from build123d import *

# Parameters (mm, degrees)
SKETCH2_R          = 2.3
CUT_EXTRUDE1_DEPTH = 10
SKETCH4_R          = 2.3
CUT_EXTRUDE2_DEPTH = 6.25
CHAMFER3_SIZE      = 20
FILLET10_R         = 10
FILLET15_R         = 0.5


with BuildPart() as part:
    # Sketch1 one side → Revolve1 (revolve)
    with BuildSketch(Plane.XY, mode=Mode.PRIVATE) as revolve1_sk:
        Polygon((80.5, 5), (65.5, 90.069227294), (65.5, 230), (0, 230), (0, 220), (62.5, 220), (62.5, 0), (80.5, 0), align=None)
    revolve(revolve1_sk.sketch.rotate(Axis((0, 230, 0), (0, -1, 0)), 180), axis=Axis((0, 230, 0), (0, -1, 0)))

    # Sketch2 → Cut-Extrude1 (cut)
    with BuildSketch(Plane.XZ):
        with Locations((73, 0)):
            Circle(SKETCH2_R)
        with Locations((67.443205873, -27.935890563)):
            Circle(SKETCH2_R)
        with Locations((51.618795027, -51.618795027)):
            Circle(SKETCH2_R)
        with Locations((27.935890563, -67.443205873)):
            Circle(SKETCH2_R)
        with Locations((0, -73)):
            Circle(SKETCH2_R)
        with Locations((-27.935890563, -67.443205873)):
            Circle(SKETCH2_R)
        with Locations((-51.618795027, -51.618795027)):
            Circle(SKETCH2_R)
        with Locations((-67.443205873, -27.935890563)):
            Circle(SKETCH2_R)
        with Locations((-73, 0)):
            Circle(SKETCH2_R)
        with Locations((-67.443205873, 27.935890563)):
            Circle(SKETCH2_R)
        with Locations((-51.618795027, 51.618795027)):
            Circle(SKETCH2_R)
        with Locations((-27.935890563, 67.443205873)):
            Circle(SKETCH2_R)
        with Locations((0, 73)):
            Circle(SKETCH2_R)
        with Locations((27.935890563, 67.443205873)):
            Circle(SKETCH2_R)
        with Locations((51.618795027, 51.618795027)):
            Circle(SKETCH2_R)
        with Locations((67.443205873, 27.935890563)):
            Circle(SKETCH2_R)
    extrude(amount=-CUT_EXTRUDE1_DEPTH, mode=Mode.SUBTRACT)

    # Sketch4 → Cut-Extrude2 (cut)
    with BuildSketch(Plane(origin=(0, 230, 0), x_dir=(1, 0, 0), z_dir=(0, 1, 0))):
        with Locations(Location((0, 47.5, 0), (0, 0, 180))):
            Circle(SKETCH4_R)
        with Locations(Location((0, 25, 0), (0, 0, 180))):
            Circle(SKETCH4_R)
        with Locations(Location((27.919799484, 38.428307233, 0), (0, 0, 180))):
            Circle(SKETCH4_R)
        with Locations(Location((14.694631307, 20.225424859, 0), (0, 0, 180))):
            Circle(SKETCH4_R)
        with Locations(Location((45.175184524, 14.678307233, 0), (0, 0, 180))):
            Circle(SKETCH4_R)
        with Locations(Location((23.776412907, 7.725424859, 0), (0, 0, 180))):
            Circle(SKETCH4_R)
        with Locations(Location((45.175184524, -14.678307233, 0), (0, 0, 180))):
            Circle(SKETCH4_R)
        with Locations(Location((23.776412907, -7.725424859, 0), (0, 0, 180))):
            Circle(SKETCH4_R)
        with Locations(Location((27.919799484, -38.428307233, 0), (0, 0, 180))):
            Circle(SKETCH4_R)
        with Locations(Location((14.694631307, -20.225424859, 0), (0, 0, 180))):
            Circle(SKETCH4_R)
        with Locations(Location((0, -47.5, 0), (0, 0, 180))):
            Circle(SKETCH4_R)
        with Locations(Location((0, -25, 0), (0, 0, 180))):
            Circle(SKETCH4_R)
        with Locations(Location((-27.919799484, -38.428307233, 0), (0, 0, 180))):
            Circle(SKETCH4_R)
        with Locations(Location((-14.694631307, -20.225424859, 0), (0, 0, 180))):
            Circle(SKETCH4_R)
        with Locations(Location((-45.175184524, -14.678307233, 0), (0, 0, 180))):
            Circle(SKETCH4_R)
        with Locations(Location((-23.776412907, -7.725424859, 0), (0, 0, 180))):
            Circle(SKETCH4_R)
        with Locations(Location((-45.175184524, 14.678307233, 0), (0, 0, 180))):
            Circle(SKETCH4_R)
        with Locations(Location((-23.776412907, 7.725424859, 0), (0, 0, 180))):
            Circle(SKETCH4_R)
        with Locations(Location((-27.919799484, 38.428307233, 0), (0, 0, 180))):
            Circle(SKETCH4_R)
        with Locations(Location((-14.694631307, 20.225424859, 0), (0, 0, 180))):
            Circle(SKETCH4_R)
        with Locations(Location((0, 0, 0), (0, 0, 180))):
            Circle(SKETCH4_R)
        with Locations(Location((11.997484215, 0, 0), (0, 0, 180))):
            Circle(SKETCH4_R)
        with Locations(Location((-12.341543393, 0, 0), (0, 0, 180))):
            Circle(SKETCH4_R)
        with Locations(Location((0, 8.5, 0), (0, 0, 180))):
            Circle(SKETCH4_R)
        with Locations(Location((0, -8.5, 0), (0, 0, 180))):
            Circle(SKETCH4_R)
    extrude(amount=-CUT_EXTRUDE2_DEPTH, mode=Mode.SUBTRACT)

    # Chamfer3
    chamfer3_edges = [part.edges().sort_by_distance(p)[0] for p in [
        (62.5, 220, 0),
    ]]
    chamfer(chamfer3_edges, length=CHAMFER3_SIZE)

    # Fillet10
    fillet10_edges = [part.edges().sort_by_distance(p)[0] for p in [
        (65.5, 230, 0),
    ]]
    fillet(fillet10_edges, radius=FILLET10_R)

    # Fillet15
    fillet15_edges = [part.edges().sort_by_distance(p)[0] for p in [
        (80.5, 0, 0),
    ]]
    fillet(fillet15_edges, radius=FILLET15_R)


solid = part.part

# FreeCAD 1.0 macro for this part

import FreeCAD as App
import Part
import Sketcher
from FreeCAD import Vector
Q = App.Units.Quantity


def edges_at(feature, points):
    """Names of the edges that pass closest to the given points."""
    edges = feature.Shape.Edges
    near = lambda p: min(range(len(edges)), key=lambda i: edges[i].distToShape(Part.Vertex(*p))[0])
    return sorted({f"Edge{near(p) + 1}" for p in points})

doc = App.newDocument("Part")
body = doc.addObject("PartDesign::Body", "Body")

# Sketch on XY plane
sketch1 = body.newObject("Sketcher::SketchObject", "Sketch")
sketch1.AttachmentSupport = (doc.getObject("XY_Plane"), [""])
sketch1.MapMode = "FlatFace"
sketch1.addGeometry(Part.LineSegment(Vector(80, 5, 0), Vector(66, 90, 0)), False)
sketch1.addGeometry(Part.LineSegment(Vector(66, 90, 0), Vector(66, 230, 0)), False)
sketch1.addGeometry(Part.LineSegment(Vector(66, 230, 0), Vector(0, 230, 0)), False)
sketch1.addGeometry(Part.LineSegment(Vector(0, 230, 0), Vector(0, 220, 0)), False)
sketch1.addGeometry(Part.LineSegment(Vector(0, 220, 0), Vector(62, 220, 0)), False)
sketch1.addGeometry(Part.LineSegment(Vector(62, 220, 0), Vector(62, 0, 0)), False)
sketch1.addGeometry(Part.LineSegment(Vector(62, 0, 0), Vector(80, 0, 0)), False)
sketch1.addGeometry(Part.LineSegment(Vector(80, 0, 0), Vector(80, 5, 0)), False)
sketch1.addConstraint(Sketcher.Constraint("Coincident", 0, 2, 1, 1))
sketch1.addConstraint(Sketcher.Constraint("Coincident", 1, 2, 2, 1))
sketch1.addConstraint(Sketcher.Constraint("Coincident", 2, 2, 3, 1))
sketch1.addConstraint(Sketcher.Constraint("Coincident", 3, 2, 4, 1))
sketch1.addConstraint(Sketcher.Constraint("Coincident", 4, 2, 5, 1))
sketch1.addConstraint(Sketcher.Constraint("Coincident", 5, 2, 6, 1))
sketch1.addConstraint(Sketcher.Constraint("Coincident", 6, 2, 7, 1))
sketch1.addConstraint(Sketcher.Constraint("Coincident", 7, 2, 0, 1))
sketch1.addConstraint(Sketcher.Constraint("Vertical", 1))
sketch1.addConstraint(Sketcher.Constraint("Horizontal", 2))
sketch1.addConstraint(Sketcher.Constraint("Vertical", 3))
sketch1.addConstraint(Sketcher.Constraint("Horizontal", 4))
sketch1.addConstraint(Sketcher.Constraint("Vertical", 5))
sketch1.addConstraint(Sketcher.Constraint("Horizontal", 6))
sketch1.addConstraint(Sketcher.Constraint("Vertical", 7))
sketch1.addConstraint(Sketcher.Constraint("PointOnObject", 2, 2, -2))
sketch1.addConstraint(Sketcher.Constraint("PointOnObject", 5, 2, -1))
sketch1.addConstraint(Sketcher.Constraint("DistanceX", 6, 1, 6, 2, Q("18 mm")))
sketch1.addConstraint(Sketcher.Constraint("DistanceY", 3, 2, 3, 1, Q("10 mm")))
sketch1.addConstraint(Sketcher.Constraint("DistanceY", 5, 2, 5, 1, Q("220 mm")))
sketch1.addConstraint(Sketcher.Constraint("DistanceY", 7, 1, 7, 2, Q("5 mm")))
sketch1.addConstraint(Sketcher.Constraint("Angle", 0, Q("100 deg")))
sketch1.addConstraint(Sketcher.Constraint("DistanceX", 2, 2, 2, 1, Q("65.5 mm")))
sketch1.addConstraint(Sketcher.Constraint("DistanceX", 4, 1, 4, 2, Q("62.5 mm")))
revolution = body.newObject("PartDesign::Revolution", "Revolution")
revolution.Profile = sketch1
revolution.ReferenceAxis = (sketch1, ["V_Axis"])
revolution.Angle = 360

# Sketch on XZ plane
sketch2 = body.newObject("Sketcher::SketchObject", "Sketch001")
sketch2.AttachmentSupport = (doc.getObject("XZ_Plane"), [""])
sketch2.MapMode = "FlatFace"
sketch2.addGeometry(Part.Circle(Vector(73, 0, 0), Vector(0, 0, 1), 2.3), False)
sketch2.addGeometry(Part.Circle(Vector(67.4, -27.9, 0), Vector(0, 0, 1), 2.3), False)
sketch2.addGeometry(Part.Circle(Vector(51.6, -51.6, 0), Vector(0, 0, 1), 2.3), False)
sketch2.addGeometry(Part.Circle(Vector(27.9, -67.4, 0), Vector(0, 0, 1), 2.3), False)
sketch2.addGeometry(Part.Circle(Vector(0, -73, 0), Vector(0, 0, 1), 2.3), False)
sketch2.addGeometry(Part.Circle(Vector(-27.9, -67.4, 0), Vector(0, 0, 1), 2.3), False)
sketch2.addGeometry(Part.Circle(Vector(-51.6, -51.6, 0), Vector(0, 0, 1), 2.3), False)
sketch2.addGeometry(Part.Circle(Vector(-67.4, -27.9, 0), Vector(0, 0, 1), 2.3), False)
sketch2.addGeometry(Part.Circle(Vector(-73, 0, 0), Vector(0, 0, 1), 2.3), False)
sketch2.addGeometry(Part.Circle(Vector(-67.4, 27.9, 0), Vector(0, 0, 1), 2.3), False)
sketch2.addGeometry(Part.Circle(Vector(-51.6, 51.6, 0), Vector(0, 0, 1), 2.3), False)
sketch2.addGeometry(Part.Circle(Vector(-27.9, 67.4, 0), Vector(0, 0, 1), 2.3), False)
sketch2.addGeometry(Part.Circle(Vector(0, 73, 0), Vector(0, 0, 1), 2.3), False)
sketch2.addGeometry(Part.Circle(Vector(27.9, 67.4, 0), Vector(0, 0, 1), 2.3), False)
sketch2.addGeometry(Part.Circle(Vector(51.6, 51.6, 0), Vector(0, 0, 1), 2.3), False)
sketch2.addGeometry(Part.Circle(Vector(67.4, 27.9, 0), Vector(0, 0, 1), 2.3), False)
sketch2.addConstraint(Sketcher.Constraint("Equal", 0, 1))
sketch2.addConstraint(Sketcher.Constraint("Equal", 1, 2))
sketch2.addConstraint(Sketcher.Constraint("Equal", 2, 3))
sketch2.addConstraint(Sketcher.Constraint("Equal", 3, 4))
sketch2.addConstraint(Sketcher.Constraint("Equal", 4, 5))
sketch2.addConstraint(Sketcher.Constraint("Equal", 5, 6))
sketch2.addConstraint(Sketcher.Constraint("Equal", 6, 7))
sketch2.addConstraint(Sketcher.Constraint("Equal", 7, 8))
sketch2.addConstraint(Sketcher.Constraint("Equal", 8, 9))
sketch2.addConstraint(Sketcher.Constraint("Equal", 9, 10))
sketch2.addConstraint(Sketcher.Constraint("Equal", 10, 11))
sketch2.addConstraint(Sketcher.Constraint("Equal", 11, 12))
sketch2.addConstraint(Sketcher.Constraint("Equal", 12, 13))
sketch2.addConstraint(Sketcher.Constraint("Equal", 13, 14))
sketch2.addConstraint(Sketcher.Constraint("Equal", 14, 15))
sketch2.addConstraint(Sketcher.Constraint("Symmetric", 0, 3, 8, 3, -1, 1))
sketch2.addConstraint(Sketcher.Constraint("Symmetric", 1, 3, 9, 3, -1, 1))
sketch2.addConstraint(Sketcher.Constraint("Symmetric", 2, 3, 10, 3, -1, 1))
sketch2.addConstraint(Sketcher.Constraint("Symmetric", 3, 3, 11, 3, -1, 1))
sketch2.addConstraint(Sketcher.Constraint("Symmetric", 4, 3, 12, 3, -1, 1))
sketch2.addConstraint(Sketcher.Constraint("Symmetric", 5, 3, 13, 3, -1, 1))
sketch2.addConstraint(Sketcher.Constraint("Symmetric", 6, 3, 14, 3, -1, 1))
sketch2.addConstraint(Sketcher.Constraint("Symmetric", 7, 3, 15, 3, -1, 1))
sketch2.addConstraint(Sketcher.Constraint("Symmetric", 3, 3, 5, 3, -2))
sketch2.addConstraint(Sketcher.Constraint("Symmetric", 2, 3, 6, 3, -2))
sketch2.addConstraint(Sketcher.Constraint("Symmetric", 1, 3, 7, 3, -2))
sketch2.addConstraint(Sketcher.Constraint("PointOnObject", 0, 3, -1))
sketch2.addConstraint(Sketcher.Constraint("PointOnObject", 4, 3, -2))
sketch2.addConstraint(Sketcher.Constraint("Diameter", 0, Q("4.6 mm")))
sketch2.addConstraint(Sketcher.Constraint("DistanceX", -1, 1, 0, 3, Q("73 mm")))
sketch2.addConstraint(Sketcher.Constraint("DistanceY", 4, 3, -1, 1, Q("73 mm")))
sketch2.addConstraint(Sketcher.Constraint("DistanceX", 6, 3, 1, 3, Q("119.062001 mm")))
sketch2.addConstraint(Sketcher.Constraint("DistanceY", 5, 3, 10, 3, Q("119.062001 mm")))
sketch2.addConstraint(Sketcher.Constraint("DistanceY", 1, 3, -1, 1, Q("27.935891 mm")))
sketch2.addConstraint(Sketcher.Constraint("DistanceX", -1, 1, 3, 3, Q("27.935891 mm")))
sketch2.addConstraint(Sketcher.Constraint("DistanceX", 2, 3, 1, 3, Q("15.824411 mm")))
sketch2.addConstraint(Sketcher.Constraint("DistanceY", 3, 3, 2, 3, Q("15.824411 mm")))
pocket1 = body.newObject("PartDesign::Pocket", "Pocket")
pocket1.Profile = sketch2
pocket1.Length = 10

# Sketch on XZ plane
sketch3 = body.newObject("Sketcher::SketchObject", "Sketch002")
sketch3.AttachmentSupport = (doc.getObject("XZ_Plane"), [""])
sketch3.MapMode = "FlatFace"
sketch3.AttachmentOffset = App.Placement(Vector(0, 0, -230), App.Rotation())
sketch3.addGeometry(Part.Circle(Vector(0, -47.5, 0), Vector(0, 0, 1), 2.3), False)
sketch3.addGeometry(Part.Circle(Vector(0, -25, 0), Vector(0, 0, 1), 2.3), False)
sketch3.addGeometry(Part.Circle(Vector(27.9, -38.4, 0), Vector(0, 0, 1), 2.3), False)
sketch3.addGeometry(Part.Circle(Vector(14.7, -20.2, 0), Vector(0, 0, 1), 2.3), False)
sketch3.addGeometry(Part.Circle(Vector(45.2, -14.7, 0), Vector(0, 0, 1), 2.3), False)
sketch3.addGeometry(Part.Circle(Vector(23.8, -7.7, 0), Vector(0, 0, 1), 2.3), False)
sketch3.addGeometry(Part.Circle(Vector(45.2, 14.7, 0), Vector(0, 0, 1), 2.3), False)
sketch3.addGeometry(Part.Circle(Vector(23.8, 7.7, 0), Vector(0, 0, 1), 2.3), False)
sketch3.addGeometry(Part.Circle(Vector(27.9, 38.4, 0), Vector(0, 0, 1), 2.3), False)
sketch3.addGeometry(Part.Circle(Vector(14.7, 20.2, 0), Vector(0, 0, 1), 2.3), False)
sketch3.addGeometry(Part.Circle(Vector(0, 47.5, 0), Vector(0, 0, 1), 2.3), False)
sketch3.addGeometry(Part.Circle(Vector(0, 25, 0), Vector(0, 0, 1), 2.3), False)
sketch3.addGeometry(Part.Circle(Vector(-27.9, 38.4, 0), Vector(0, 0, 1), 2.3), False)
sketch3.addGeometry(Part.Circle(Vector(-14.7, 20.2, 0), Vector(0, 0, 1), 2.3), False)
sketch3.addGeometry(Part.Circle(Vector(-45.2, 14.7, 0), Vector(0, 0, 1), 2.3), False)
sketch3.addGeometry(Part.Circle(Vector(-23.8, 7.7, 0), Vector(0, 0, 1), 2.3), False)
sketch3.addGeometry(Part.Circle(Vector(-45.2, -14.7, 0), Vector(0, 0, 1), 2.3), False)
sketch3.addGeometry(Part.Circle(Vector(-23.8, -7.7, 0), Vector(0, 0, 1), 2.3), False)
sketch3.addGeometry(Part.Circle(Vector(-27.9, -38.4, 0), Vector(0, 0, 1), 2.3), False)
sketch3.addGeometry(Part.Circle(Vector(-14.7, -20.2, 0), Vector(0, 0, 1), 2.3), False)
sketch3.addGeometry(Part.Circle(Vector(0, 0, 0), Vector(0, 0, 1), 2.3), False)
sketch3.addGeometry(Part.Circle(Vector(12, 0, 0), Vector(0, 0, 1), 2.3), False)
sketch3.addGeometry(Part.Circle(Vector(-12.3, 0, 0), Vector(0, 0, 1), 2.3), False)
sketch3.addGeometry(Part.Circle(Vector(0, -8.5, 0), Vector(0, 0, 1), 2.3), False)
sketch3.addGeometry(Part.Circle(Vector(0, 8.5, 0), Vector(0, 0, 1), 2.3), False)
sketch3.addConstraint(Sketcher.Constraint("Coincident", 20, 3, -1, 1))
sketch3.addConstraint(Sketcher.Constraint("Equal", 0, 1))
sketch3.addConstraint(Sketcher.Constraint("Equal", 1, 2))
sketch3.addConstraint(Sketcher.Constraint("Equal", 2, 3))
sketch3.addConstraint(Sketcher.Constraint("Equal", 3, 4))
sketch3.addConstraint(Sketcher.Constraint("Equal", 4, 5))
sketch3.addConstraint(Sketcher.Constraint("Equal", 5, 6))
sketch3.addConstraint(Sketcher.Constraint("Equal", 6, 7))
sketch3.addConstraint(Sketcher.Constraint("Equal", 7, 8))
sketch3.addConstraint(Sketcher.Constraint("Equal", 8, 9))
sketch3.addConstraint(Sketcher.Constraint("Equal", 9, 10))
sketch3.addConstraint(Sketcher.Constraint("Equal", 10, 11))
sketch3.addConstraint(Sketcher.Constraint("Equal", 11, 12))
sketch3.addConstraint(Sketcher.Constraint("Equal", 12, 13))
sketch3.addConstraint(Sketcher.Constraint("Equal", 13, 14))
sketch3.addConstraint(Sketcher.Constraint("Equal", 14, 15))
sketch3.addConstraint(Sketcher.Constraint("Equal", 15, 16))
sketch3.addConstraint(Sketcher.Constraint("Equal", 16, 17))
sketch3.addConstraint(Sketcher.Constraint("Equal", 17, 18))
sketch3.addConstraint(Sketcher.Constraint("Equal", 18, 19))
sketch3.addConstraint(Sketcher.Constraint("Equal", 19, 20))
sketch3.addConstraint(Sketcher.Constraint("Equal", 20, 21))
sketch3.addConstraint(Sketcher.Constraint("Equal", 21, 22))
sketch3.addConstraint(Sketcher.Constraint("Equal", 22, 23))
sketch3.addConstraint(Sketcher.Constraint("Equal", 23, 24))
sketch3.addConstraint(Sketcher.Constraint("Symmetric", 0, 3, 10, 3, -1, 1))
sketch3.addConstraint(Sketcher.Constraint("Symmetric", 1, 3, 11, 3, -1, 1))
sketch3.addConstraint(Sketcher.Constraint("Symmetric", 2, 3, 12, 3, -1, 1))
sketch3.addConstraint(Sketcher.Constraint("Symmetric", 3, 3, 13, 3, -1, 1))
sketch3.addConstraint(Sketcher.Constraint("Symmetric", 4, 3, 14, 3, -1, 1))
sketch3.addConstraint(Sketcher.Constraint("Symmetric", 5, 3, 15, 3, -1, 1))
sketch3.addConstraint(Sketcher.Constraint("Symmetric", 6, 3, 16, 3, -1, 1))
sketch3.addConstraint(Sketcher.Constraint("Symmetric", 7, 3, 17, 3, -1, 1))
sketch3.addConstraint(Sketcher.Constraint("Symmetric", 8, 3, 18, 3, -1, 1))
sketch3.addConstraint(Sketcher.Constraint("Symmetric", 9, 3, 19, 3, -1, 1))
sketch3.addConstraint(Sketcher.Constraint("Symmetric", 23, 3, 24, 3, -1, 1))
sketch3.addConstraint(Sketcher.Constraint("Symmetric", 8, 3, 12, 3, -2))
sketch3.addConstraint(Sketcher.Constraint("Symmetric", 9, 3, 13, 3, -2))
sketch3.addConstraint(Sketcher.Constraint("Symmetric", 6, 3, 14, 3, -2))
sketch3.addConstraint(Sketcher.Constraint("Symmetric", 7, 3, 15, 3, -2))
sketch3.addConstraint(Sketcher.Constraint("PointOnObject", 0, 3, -2))
sketch3.addConstraint(Sketcher.Constraint("PointOnObject", 1, 3, -2))
sketch3.addConstraint(Sketcher.Constraint("PointOnObject", 21, 3, -1))
sketch3.addConstraint(Sketcher.Constraint("PointOnObject", 22, 3, -1))
sketch3.addConstraint(Sketcher.Constraint("PointOnObject", 23, 3, -2))
sketch3.addConstraint(Sketcher.Constraint("Diameter", 0, Q("4.6 mm")))
sketch3.addConstraint(Sketcher.Constraint("DistanceY", 1, 3, -1, 1, Q("25 mm")))
sketch3.addConstraint(Sketcher.Constraint("DistanceY", 23, 3, 24, 3, Q("17 mm")))
sketch3.addConstraint(Sketcher.Constraint("DistanceY", 0, 3, -1, 1, Q("47.5 mm")))
sketch3.addConstraint(Sketcher.Constraint("DistanceY", 3, 3, 5, 3, Q("12.5 mm")))
sketch3.addConstraint(Sketcher.Constraint("DistanceY", 2, 3, 4, 3, Q("23.75 mm")))
sketch3.addConstraint(Sketcher.Constraint("DistanceX", -1, 1, 2, 3, Q("27.919799 mm")))
sketch3.addConstraint(Sketcher.Constraint("DistanceX", -1, 1, 3, 3, Q("14.694631 mm")))
sketch3.addConstraint(Sketcher.Constraint("DistanceX", 3, 3, 5, 3, Q("9.081782 mm")))
sketch3.addConstraint(Sketcher.Constraint("DistanceX", 5, 3, 4, 3, Q("21.398772 mm")))
sketch3.addConstraint(Sketcher.Constraint("DistanceY", 5, 3, 7, 3, Q("15.45085 mm")))
sketch3.addConstraint(Sketcher.Constraint("DistanceX", 21, 3, 5, 3, Q("11.778929 mm")))
sketch3.addConstraint(Sketcher.Constraint("DistanceX", 15, 3, 22, 3, Q("11.43487 mm")))
sketch3.addConstraint(Sketcher.Constraint("DistanceY", 2, 3, -1, 1, Q("38.428307 mm")))
pocket2 = body.newObject("PartDesign::Pocket", "Pocket001")
pocket2.Profile = sketch3
pocket2.Length = 6.25
pocket2.Reversed = True
doc.recompute()

chamfer = body.newObject("PartDesign::Chamfer", "Chamfer")
chamfer.Base = (pocket2, edges_at(pocket2, [(62.5, 220, 0)]))
chamfer.Size = 20
doc.recompute()

fillet = body.newObject("PartDesign::Fillet", "Fillet")
fillet.Base = (chamfer, edges_at(chamfer, [(65.5, 230, 0)]))
fillet.Radius = 10
doc.recompute()

fillet2 = body.newObject("PartDesign::Fillet", "Fillet001")
fillet2.Base = (fillet, edges_at(fillet, [(80.5, 0, 0)]))
fillet2.Radius = 0.5

doc.recompute()
